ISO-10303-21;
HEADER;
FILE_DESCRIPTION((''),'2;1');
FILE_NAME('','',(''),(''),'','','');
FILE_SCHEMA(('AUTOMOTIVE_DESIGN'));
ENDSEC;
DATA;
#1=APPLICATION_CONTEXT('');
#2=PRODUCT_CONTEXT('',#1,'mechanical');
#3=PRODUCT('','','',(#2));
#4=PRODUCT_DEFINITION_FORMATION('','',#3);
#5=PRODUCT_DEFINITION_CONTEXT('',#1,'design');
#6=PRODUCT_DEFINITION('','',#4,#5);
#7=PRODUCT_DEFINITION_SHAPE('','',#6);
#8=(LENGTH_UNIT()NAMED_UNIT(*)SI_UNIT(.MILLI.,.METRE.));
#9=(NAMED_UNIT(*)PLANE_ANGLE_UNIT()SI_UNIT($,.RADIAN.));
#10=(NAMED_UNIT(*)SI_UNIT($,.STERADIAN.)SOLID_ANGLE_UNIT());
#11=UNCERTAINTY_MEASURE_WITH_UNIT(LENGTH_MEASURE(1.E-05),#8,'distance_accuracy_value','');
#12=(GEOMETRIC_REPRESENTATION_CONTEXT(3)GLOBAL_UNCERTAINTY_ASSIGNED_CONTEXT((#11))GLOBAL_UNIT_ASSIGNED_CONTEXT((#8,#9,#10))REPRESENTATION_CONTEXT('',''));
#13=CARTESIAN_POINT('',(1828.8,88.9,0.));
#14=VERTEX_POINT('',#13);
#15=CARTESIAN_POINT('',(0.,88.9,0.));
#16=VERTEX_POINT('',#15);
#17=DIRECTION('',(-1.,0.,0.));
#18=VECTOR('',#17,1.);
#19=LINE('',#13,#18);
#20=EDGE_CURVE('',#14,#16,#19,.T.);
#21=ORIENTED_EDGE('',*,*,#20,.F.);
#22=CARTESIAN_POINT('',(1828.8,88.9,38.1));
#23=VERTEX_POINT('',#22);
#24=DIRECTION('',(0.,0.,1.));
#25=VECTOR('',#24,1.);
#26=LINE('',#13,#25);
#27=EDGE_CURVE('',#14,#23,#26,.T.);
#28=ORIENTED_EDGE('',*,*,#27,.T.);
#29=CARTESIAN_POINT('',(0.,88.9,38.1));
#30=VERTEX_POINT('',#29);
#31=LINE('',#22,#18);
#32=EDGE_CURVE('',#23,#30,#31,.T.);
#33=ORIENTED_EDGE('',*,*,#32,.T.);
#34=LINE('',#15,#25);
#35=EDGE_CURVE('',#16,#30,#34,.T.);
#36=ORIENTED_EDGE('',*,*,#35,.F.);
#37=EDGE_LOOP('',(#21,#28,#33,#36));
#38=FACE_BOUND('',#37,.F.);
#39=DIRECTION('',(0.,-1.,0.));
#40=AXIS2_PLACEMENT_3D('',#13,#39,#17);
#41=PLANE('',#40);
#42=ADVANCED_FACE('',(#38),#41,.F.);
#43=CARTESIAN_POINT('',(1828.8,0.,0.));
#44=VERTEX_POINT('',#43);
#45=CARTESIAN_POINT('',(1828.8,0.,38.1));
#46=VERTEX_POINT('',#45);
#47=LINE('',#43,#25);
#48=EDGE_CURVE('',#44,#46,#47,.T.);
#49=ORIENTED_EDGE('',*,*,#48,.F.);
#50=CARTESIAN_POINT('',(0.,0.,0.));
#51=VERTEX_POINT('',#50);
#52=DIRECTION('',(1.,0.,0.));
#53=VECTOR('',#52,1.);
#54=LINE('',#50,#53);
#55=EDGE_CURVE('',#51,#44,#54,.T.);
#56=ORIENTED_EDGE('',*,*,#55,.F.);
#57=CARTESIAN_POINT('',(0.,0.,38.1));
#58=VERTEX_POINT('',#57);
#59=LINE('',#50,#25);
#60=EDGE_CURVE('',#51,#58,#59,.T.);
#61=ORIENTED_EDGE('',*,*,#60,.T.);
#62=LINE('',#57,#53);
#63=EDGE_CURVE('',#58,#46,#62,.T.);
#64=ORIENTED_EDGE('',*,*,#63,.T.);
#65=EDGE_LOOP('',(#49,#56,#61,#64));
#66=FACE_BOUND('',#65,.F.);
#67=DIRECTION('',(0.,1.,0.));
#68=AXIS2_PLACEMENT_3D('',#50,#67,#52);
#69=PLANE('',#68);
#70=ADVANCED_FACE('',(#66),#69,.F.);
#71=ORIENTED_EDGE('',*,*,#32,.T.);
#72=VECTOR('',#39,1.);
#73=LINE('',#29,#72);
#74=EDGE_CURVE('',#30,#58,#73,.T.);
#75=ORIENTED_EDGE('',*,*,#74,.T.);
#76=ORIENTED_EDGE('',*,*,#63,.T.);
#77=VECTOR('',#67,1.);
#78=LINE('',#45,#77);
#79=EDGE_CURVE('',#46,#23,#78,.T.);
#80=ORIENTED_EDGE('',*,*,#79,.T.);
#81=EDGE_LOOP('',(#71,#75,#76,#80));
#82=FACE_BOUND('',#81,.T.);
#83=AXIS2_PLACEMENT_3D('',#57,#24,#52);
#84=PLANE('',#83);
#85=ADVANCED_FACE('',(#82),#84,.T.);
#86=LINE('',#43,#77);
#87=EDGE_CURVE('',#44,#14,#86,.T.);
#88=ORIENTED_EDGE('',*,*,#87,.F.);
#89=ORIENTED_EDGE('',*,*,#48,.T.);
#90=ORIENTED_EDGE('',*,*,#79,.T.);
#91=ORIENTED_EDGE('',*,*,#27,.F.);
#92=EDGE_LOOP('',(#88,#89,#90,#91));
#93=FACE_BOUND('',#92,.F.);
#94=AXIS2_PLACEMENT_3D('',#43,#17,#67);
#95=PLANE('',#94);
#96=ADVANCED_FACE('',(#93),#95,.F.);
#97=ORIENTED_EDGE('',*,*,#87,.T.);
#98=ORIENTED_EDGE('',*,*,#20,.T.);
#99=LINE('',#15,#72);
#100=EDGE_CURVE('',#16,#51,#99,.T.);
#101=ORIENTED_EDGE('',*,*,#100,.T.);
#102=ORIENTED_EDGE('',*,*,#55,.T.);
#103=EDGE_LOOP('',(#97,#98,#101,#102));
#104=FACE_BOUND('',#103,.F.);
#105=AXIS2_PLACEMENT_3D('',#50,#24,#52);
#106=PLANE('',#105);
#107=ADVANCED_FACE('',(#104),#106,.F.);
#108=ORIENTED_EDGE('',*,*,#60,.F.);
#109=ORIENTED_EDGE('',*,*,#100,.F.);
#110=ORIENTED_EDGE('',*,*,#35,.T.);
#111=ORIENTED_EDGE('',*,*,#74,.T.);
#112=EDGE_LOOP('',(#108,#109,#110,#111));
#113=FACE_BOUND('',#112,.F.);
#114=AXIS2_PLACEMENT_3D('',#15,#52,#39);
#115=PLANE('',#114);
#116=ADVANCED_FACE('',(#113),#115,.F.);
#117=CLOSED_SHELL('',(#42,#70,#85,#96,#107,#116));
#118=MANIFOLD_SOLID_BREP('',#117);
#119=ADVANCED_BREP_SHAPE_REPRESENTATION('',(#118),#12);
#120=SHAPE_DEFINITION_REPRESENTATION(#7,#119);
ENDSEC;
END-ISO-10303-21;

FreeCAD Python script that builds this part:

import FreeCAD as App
import Part
import Sketcher

V = App.Vector
Q = App.Units.Quantity


def add_polygon(sketch, points):
    """Adds a closed chain of lines whose ends are joined by coincident constraints."""
    first, n = sketch.GeometryCount, len(points)
    for a, b in zip(points, points[1:] + points[:1]):
        sketch.addGeometry(Part.LineSegment(App.Vector(*a, 0), App.Vector(*b, 0)), False)
    for i in range(n):
        sketch.addConstraint(Sketcher.Constraint("Coincident", first + i, 2, first + (i + 1) % n, 1))

doc = App.newDocument("Part")
body = doc.addObject("PartDesign::Body", "Body")

# Sketch on XY plane
sketch1 = doc.addObject("Sketcher::SketchObject", "Sketch")
body.addObject(sketch1)
sketch1.AttachmentSupport = (doc.XY_Plane, [""])
sketch1.MapMode = "FlatFace"
add_polygon(sketch1, [(0, 89), (0, 0), (1829, 0), (1829, 89)])  # lines 0-3
sketch1.addConstraint([
    Sketcher.Constraint("Vertical", 0),
    Sketcher.Constraint("Horizontal", 1),
    Sketcher.Constraint("Vertical", 2),
    Sketcher.Constraint("Horizontal", 3),
    Sketcher.Constraint("Coincident", 0, 2, -1, 1),
    Sketcher.Constraint("DistanceX", 1, 1, 1, 2, Q("72 in")),
    Sketcher.Constraint("DistanceY", 0, 2, 0, 1, Q("3.5 in")),
])
pad1 = doc.addObject("PartDesign::Pad", "Pad")
body.addObject(pad1)
pad1.Profile = sketch1
pad1.Length = Q("1.5 in")

doc.recompute()
